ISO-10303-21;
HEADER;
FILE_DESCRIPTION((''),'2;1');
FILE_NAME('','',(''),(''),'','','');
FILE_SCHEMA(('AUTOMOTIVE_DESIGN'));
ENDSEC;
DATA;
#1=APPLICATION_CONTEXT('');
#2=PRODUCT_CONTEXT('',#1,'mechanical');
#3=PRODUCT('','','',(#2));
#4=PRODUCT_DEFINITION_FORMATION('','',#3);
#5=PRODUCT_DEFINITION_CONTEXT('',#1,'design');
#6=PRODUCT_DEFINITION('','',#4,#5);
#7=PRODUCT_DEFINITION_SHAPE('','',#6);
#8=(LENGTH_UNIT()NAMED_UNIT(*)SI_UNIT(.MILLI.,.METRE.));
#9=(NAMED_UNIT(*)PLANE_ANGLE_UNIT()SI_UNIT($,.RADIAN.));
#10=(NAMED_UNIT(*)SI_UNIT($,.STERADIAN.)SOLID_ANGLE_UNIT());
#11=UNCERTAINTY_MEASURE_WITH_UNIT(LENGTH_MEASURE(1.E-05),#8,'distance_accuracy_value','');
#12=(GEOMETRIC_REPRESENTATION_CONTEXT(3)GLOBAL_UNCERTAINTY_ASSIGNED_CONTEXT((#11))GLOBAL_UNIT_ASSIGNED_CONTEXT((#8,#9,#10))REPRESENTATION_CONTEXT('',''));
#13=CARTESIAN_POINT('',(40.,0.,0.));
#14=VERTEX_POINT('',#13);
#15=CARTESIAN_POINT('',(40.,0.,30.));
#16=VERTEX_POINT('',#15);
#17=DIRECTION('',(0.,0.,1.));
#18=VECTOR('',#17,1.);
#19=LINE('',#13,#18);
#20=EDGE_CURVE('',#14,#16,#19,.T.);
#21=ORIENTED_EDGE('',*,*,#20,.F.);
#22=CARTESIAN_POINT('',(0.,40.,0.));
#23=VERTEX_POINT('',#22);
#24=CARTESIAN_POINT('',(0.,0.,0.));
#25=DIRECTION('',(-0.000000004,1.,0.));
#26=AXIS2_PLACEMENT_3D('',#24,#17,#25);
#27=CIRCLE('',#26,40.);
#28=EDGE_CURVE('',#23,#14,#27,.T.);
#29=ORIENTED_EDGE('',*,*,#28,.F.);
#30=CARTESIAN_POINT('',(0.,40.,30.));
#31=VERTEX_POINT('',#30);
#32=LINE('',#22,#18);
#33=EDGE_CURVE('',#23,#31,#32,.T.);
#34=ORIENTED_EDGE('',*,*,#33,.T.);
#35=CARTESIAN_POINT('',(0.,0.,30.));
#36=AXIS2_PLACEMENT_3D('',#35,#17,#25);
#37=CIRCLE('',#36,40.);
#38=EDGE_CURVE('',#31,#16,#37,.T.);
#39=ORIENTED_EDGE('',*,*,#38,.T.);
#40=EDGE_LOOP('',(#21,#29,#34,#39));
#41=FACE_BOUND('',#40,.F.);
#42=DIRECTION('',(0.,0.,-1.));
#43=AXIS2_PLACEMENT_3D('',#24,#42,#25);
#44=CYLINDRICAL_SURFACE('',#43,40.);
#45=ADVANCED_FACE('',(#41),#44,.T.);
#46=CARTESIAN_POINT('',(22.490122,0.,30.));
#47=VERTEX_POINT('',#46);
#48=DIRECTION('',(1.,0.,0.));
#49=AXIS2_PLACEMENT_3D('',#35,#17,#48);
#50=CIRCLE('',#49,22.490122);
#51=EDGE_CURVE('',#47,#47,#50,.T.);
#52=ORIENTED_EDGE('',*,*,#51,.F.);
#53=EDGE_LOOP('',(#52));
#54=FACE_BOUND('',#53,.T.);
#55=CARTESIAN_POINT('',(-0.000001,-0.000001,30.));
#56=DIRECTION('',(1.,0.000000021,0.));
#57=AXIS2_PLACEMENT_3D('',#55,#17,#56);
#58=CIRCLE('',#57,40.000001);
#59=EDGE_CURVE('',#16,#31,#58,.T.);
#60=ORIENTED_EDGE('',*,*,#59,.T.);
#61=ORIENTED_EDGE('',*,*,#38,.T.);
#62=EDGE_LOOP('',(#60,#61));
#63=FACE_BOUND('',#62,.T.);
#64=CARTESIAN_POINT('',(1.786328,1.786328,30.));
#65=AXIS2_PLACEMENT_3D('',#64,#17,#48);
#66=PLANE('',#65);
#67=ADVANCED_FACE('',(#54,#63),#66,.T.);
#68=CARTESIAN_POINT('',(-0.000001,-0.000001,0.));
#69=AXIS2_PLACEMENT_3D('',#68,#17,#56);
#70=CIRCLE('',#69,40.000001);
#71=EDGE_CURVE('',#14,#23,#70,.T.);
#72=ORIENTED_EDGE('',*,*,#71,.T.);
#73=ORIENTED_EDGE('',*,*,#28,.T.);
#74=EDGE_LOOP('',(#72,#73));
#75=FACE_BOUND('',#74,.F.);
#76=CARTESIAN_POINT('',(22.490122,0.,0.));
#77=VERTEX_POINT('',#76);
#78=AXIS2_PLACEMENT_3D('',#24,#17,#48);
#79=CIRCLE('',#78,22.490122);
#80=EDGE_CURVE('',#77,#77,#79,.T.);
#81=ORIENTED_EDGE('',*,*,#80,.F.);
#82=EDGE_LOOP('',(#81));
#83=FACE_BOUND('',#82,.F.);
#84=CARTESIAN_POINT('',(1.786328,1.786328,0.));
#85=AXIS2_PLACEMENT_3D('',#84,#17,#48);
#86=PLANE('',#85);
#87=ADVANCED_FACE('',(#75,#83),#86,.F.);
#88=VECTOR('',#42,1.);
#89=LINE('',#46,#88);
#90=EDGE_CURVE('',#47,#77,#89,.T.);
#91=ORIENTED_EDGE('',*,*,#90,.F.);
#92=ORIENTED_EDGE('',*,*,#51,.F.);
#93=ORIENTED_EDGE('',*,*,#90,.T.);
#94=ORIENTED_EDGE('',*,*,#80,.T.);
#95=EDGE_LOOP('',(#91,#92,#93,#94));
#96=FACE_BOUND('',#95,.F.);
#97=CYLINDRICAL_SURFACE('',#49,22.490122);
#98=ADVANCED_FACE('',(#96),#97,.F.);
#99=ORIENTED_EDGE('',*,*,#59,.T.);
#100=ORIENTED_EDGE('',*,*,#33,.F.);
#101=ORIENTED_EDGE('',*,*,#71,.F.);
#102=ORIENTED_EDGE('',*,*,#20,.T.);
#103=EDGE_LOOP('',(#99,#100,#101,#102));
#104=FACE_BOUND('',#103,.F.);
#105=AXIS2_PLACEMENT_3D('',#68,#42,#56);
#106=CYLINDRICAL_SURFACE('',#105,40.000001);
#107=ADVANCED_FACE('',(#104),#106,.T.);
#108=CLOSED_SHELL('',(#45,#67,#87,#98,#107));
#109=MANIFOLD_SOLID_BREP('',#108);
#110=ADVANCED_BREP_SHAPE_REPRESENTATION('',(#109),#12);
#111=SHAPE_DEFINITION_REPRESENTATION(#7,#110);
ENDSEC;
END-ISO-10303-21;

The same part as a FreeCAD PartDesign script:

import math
import FreeCAD as App
import Part
import Sketcher
from FreeCAD import Vector

doc = App.newDocument("Part")
body = doc.addObject("PartDesign::Body", "Body")

# Sketch on XY plane
sketch1 = doc.addObject("Sketcher::SketchObject", "Sketch")
body.addObject(sketch1)
sketch1.AttachmentSupport = (doc.XY_Plane, [""])
sketch1.MapMode = "FlatFace"
sketch1.addGeometry([
    Part.ArcOfCircle(Part.Circle(Vector(0, 0, 0), Vector(0, 0, 1), 40), math.radians(90), math.radians(360)),
    Part.ArcOfCircle(Part.Circle(Vector(0, 0, 0), Vector(0, 0, 1), 40), math.radians(0), math.radians(90)),
], False)
sketch1.addConstraint([
    Sketcher.Constraint("Tangent", 0, 1, 1, 2),
    Sketcher.Constraint("Coincident", 1, 1, 0, 2),
    Sketcher.Constraint("Coincident", 0, 3, -1, 1),
    Sketcher.Constraint("PointOnObject", 0, 1, -2),
    Sketcher.Constraint("PointOnObject", 1, 1, -1),
    Sketcher.Constraint("Radius", 0, 40.0),
])
pad1 = doc.addObject("PartDesign::Pad", "Pad")
body.addObject(pad1)
pad1.Profile = sketch1
pad1.Length = 30

# Sketch on XY plane
sketch2 = doc.addObject("Sketcher::SketchObject", "Sketch001")
body.addObject(sketch2)
sketch2.AttachmentSupport = (doc.XY_Plane, [""])
sketch2.MapMode = "FlatFace"
sketch2.AttachmentOffset = App.Placement(Vector(0, 0, 30), App.Rotation())
sketch2.addGeometry(Part.Circle(Vector(0, 0, 0), Vector(0, 0, 1), 22), False)
sketch2.addConstraint([
    Sketcher.Constraint("Coincident", 0, 3, -1, 1),
    Sketcher.Constraint("Diameter", 0, 44.980244),
])
pocket1 = doc.addObject("PartDesign::Pocket", "Pocket")
body.addObject(pocket1)
pocket1.Profile = sketch2
pocket1.Type = "ThroughAll"
body2 = doc.addObject("PartDesign::Body", "Body001")
doc.recompute()

body2.BaseFeature = body
doc.recompute()
body.Visibility = False

doc.recompute()
